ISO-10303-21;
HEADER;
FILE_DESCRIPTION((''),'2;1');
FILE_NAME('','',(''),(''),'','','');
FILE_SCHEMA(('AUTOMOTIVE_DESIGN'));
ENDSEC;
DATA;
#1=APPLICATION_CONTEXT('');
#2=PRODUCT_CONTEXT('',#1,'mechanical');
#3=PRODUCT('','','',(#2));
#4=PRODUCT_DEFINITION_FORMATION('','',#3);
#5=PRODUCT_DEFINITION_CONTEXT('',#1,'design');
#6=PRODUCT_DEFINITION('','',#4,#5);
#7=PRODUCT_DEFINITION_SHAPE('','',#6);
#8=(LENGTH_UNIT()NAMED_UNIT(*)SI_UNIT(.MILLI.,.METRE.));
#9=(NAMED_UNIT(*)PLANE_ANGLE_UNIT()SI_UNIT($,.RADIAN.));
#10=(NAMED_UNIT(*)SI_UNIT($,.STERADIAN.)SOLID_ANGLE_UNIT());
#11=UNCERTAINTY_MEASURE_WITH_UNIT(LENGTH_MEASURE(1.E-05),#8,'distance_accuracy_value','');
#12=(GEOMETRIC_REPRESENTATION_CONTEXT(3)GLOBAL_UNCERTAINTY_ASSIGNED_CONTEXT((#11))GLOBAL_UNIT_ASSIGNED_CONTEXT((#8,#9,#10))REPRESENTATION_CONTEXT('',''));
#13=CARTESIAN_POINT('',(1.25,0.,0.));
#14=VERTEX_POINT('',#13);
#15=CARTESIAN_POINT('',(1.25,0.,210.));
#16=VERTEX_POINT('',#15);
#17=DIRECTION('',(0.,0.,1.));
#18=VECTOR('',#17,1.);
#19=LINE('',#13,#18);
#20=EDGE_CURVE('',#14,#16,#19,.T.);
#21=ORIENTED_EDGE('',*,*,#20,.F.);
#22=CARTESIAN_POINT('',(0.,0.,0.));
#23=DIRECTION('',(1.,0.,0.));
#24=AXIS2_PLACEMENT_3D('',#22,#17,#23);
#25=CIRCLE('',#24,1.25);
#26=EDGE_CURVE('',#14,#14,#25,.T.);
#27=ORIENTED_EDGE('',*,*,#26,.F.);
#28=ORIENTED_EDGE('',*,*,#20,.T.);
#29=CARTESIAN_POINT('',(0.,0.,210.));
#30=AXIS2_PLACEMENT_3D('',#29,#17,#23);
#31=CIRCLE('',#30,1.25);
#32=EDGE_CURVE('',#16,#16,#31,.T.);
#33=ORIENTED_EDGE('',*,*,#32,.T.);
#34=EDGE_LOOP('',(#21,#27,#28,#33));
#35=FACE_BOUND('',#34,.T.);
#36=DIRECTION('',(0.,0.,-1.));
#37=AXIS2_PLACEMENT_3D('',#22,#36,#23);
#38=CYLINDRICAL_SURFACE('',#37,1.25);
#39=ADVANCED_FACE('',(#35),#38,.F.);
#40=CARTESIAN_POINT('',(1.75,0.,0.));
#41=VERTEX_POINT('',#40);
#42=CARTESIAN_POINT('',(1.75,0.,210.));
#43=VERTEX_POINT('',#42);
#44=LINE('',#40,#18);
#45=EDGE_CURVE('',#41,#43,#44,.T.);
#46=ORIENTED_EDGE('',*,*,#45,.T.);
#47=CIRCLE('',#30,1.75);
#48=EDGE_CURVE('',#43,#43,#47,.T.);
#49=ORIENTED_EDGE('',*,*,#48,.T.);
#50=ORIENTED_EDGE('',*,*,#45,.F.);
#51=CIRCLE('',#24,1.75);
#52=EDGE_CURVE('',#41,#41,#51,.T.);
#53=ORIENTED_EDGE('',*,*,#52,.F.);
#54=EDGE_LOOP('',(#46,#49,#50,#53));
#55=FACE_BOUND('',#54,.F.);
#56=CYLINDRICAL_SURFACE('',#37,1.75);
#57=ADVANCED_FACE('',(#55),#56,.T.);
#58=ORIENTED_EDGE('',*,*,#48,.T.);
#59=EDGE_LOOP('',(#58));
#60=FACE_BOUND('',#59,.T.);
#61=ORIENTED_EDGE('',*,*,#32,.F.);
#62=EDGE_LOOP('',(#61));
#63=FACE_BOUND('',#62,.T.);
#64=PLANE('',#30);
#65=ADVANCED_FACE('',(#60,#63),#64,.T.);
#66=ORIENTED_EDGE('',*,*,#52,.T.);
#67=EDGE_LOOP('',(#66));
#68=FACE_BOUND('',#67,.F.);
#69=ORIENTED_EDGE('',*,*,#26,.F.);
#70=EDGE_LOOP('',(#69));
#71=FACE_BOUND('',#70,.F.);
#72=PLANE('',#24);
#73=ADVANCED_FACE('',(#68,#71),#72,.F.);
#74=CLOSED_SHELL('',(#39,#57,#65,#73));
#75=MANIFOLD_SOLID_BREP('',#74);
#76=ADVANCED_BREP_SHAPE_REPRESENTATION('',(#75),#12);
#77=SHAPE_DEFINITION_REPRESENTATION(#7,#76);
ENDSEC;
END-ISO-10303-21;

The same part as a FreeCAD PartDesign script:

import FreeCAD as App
import Part
import Sketcher

V = App.Vector

doc = App.newDocument("Part")
body = doc.addObject("PartDesign::Body", "Body")

sketch1 = doc.addObject("Sketcher::SketchObject", "Sketch")
body.addObject(sketch1)
sketch1.AttachmentSupport = (doc.XY_Plane, [""])
sketch1.MapMode = "FlatFace"
sketch1.addGeometry(Part.Circle(V(0, 0, 0), V(0, 0, 1), 1.75), False)
sketch1.addGeometry(Part.Circle(V(0, 0, 0), V(0, 0, 1), 1.25), False)
sketch1.addConstraint(Sketcher.Constraint("Coincident", 0, 3, -1, 1))
sketch1.addConstraint(Sketcher.Constraint("Coincident", 1, 3, -1, 1))
sketch1.addConstraint(Sketcher.Constraint("Diameter", 0, 3.5))
sketch1.addConstraint(Sketcher.Constraint("Diameter", 1, 2.5))
pad1 = doc.addObject("PartDesign::Pad", "Pad")
body.addObject(pad1)
pad1.Profile = sketch1
pad1.Length = 210

doc.recompute()
